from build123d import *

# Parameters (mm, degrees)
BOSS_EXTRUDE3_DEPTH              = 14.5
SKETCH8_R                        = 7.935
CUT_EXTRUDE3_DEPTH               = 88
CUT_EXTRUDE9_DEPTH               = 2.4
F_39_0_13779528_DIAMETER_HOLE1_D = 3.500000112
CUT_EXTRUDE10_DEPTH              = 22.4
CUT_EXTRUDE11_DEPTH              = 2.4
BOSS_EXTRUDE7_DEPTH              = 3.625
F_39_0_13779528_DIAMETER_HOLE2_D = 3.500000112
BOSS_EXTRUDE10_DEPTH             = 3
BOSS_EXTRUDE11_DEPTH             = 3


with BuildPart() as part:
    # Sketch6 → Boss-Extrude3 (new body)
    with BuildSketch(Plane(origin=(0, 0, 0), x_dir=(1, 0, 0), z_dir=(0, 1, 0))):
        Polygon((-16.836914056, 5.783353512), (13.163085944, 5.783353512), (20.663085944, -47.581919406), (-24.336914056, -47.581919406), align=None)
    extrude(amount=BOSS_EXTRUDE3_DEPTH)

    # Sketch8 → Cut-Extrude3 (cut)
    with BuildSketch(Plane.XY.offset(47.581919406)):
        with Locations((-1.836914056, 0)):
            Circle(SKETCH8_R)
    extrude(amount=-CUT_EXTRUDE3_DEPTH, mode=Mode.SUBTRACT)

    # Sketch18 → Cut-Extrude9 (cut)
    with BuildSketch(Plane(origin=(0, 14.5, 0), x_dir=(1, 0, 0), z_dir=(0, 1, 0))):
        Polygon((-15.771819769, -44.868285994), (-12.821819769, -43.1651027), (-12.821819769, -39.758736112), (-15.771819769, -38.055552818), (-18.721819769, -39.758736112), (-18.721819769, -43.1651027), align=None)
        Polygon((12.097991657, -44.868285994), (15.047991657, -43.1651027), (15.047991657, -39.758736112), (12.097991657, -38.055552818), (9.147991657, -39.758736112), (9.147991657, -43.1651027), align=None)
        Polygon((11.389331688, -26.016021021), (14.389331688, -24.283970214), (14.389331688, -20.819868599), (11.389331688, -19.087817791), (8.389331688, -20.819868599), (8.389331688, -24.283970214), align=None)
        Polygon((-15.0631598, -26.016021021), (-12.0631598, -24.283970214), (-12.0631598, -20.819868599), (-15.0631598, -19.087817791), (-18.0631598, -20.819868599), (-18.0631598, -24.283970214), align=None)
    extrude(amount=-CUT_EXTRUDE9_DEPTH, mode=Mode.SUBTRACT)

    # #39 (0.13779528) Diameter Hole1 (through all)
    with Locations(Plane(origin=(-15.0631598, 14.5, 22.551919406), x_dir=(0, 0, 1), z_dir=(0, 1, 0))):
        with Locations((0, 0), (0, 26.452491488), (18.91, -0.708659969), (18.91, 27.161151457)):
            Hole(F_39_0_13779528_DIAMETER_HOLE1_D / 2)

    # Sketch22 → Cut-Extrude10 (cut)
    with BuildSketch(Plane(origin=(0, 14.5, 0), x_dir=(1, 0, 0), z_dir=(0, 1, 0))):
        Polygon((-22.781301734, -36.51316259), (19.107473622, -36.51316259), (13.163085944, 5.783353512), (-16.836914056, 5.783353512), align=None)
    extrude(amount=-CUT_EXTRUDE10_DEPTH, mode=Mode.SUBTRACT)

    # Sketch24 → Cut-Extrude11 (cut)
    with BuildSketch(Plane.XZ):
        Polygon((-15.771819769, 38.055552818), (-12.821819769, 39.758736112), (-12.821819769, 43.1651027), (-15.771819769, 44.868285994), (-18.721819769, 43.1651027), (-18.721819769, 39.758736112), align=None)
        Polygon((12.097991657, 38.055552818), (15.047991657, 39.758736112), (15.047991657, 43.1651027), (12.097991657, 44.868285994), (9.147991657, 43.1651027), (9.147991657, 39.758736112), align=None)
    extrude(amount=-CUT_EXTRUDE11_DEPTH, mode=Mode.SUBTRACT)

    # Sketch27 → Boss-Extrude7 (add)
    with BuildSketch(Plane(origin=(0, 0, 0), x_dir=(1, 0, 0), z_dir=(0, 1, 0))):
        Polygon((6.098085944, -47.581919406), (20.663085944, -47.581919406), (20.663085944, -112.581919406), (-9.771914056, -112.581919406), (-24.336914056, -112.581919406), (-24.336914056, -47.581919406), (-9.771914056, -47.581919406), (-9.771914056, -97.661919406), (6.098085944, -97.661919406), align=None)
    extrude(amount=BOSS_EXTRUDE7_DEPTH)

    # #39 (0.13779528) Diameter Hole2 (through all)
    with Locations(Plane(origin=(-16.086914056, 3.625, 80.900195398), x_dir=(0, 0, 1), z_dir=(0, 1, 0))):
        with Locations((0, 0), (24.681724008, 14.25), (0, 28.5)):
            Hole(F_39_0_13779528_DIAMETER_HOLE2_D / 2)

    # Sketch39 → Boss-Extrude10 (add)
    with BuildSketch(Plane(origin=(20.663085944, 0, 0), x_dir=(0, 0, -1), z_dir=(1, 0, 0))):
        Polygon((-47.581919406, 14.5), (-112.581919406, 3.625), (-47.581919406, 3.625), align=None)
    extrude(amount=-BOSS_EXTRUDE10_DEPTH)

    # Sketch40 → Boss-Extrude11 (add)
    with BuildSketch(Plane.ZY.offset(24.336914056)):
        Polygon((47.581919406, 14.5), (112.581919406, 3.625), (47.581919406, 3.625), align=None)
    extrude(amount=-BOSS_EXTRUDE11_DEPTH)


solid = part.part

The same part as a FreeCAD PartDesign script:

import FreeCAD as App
import Part
import Sketcher

V = App.Vector
Q = App.Units.Quantity


def add_polygon(sketch, points):
    """Adds a closed chain of lines whose ends are joined by coincident constraints."""
    first, n = sketch.GeometryCount, len(points)
    for a, b in zip(points, points[1:] + points[:1]):
        sketch.addGeometry(Part.LineSegment(App.Vector(*a, 0), App.Vector(*b, 0)), False)
    for i in range(n):
        sketch.addConstraint(Sketcher.Constraint("Coincident", first + i, 2, first + (i + 1) % n, 1))

doc = App.newDocument("Part")
body = doc.addObject("PartDesign::Body", "Body")

sketch1 = doc.addObject("Sketcher::SketchObject", "Sketch")
body.addObject(sketch1)
sketch1.AttachmentSupport = (doc.XZ_Plane, [""])
sketch1.MapMode = "FlatFace"
add_polygon(sketch1, [(13.163086, -5.783354), (-16.836914, -5.783354), (-24.336914, 47.581919), (20.663086, 47.581919)])
sketch1.addConstraint(Sketcher.Constraint("Horizontal", 0))
sketch1.addConstraint(Sketcher.Constraint("Horizontal", 2))
sketch1.addConstraint(Sketcher.Constraint("Equal", 1, 3))
sketch1.addConstraint(Sketcher.Constraint("DistanceX", 0, 2, 0, 1, Q("30 mm")))
sketch1.addConstraint(Sketcher.Constraint("DistanceX", 2, 1, 2, 2, Q("45 mm")))
sketch1.addConstraint(Sketcher.Constraint("Angle", 1, Q("98 deg")))
sketch1.addConstraint(Sketcher.Constraint("DistanceY", -1, 1, 1, 2, Q("47.581919 mm")))
sketch1.addConstraint(Sketcher.Constraint("DistanceX", 0, 2, -1, 1, Q("16.836914 mm")))
pad1 = doc.addObject("PartDesign::Pad", "Pad")
body.addObject(pad1)
pad1.Profile = sketch1
pad1.Length = 14.5
pad1.Reversed = True

sketch2 = doc.addObject("Sketcher::SketchObject", "Sketch001")
body.addObject(sketch2)
sketch2.AttachmentSupport = (doc.XY_Plane, [""])
sketch2.MapMode = "FlatFace"
sketch2.AttachmentOffset = App.Placement(V(0, 0, 47.581919), App.Rotation())
sketch2.addGeometry(Part.Circle(V(-1.836914, 0, 0), V(0, 0, 1), 7.935), False)
sketch2.addConstraint(Sketcher.Constraint("PointOnObject", 0, 3, -1))
sketch2.addConstraint(Sketcher.Constraint("Diameter", 0, Q("15.87 mm")))
sketch2.addConstraint(Sketcher.Constraint("DistanceX", 0, 3, -1, 1, Q("1.836914 mm")))
pocket1 = doc.addObject("PartDesign::Pocket", "Pocket")
body.addObject(pocket1)
pocket1.Profile = sketch2
pocket1.Length = 88

sketch3 = doc.addObject("Sketcher::SketchObject", "Sketch002")
body.addObject(sketch3)
sketch3.AttachmentSupport = (doc.XZ_Plane, [""])
sketch3.MapMode = "FlatFace"
sketch3.AttachmentOffset = App.Placement(V(0, 0, -14.5), App.Rotation())
add_polygon(sketch3, [(-15.77182, 44.868286), (-12.82182, 43.165103), (-12.82182, 39.758736), (-15.77182, 38.055553), (-18.72182, 39.758736), (-18.72182, 43.165103)])
add_polygon(sketch3, [(12.097992, 44.868286), (15.047992, 43.165103), (15.047992, 39.758736), (12.097992, 38.055553), (9.147992, 39.758736), (9.147992, 43.165103)])
add_polygon(sketch3, [(11.389332, 26.016021), (14.389332, 24.28397), (14.389332, 20.819869), (11.389332, 19.087818), (8.389332, 20.819869), (8.389332, 24.28397)])
add_polygon(sketch3, [(-15.06316, 26.016021), (-12.06316, 24.28397), (-12.06316, 20.819869), (-15.06316, 19.087818), (-18.06316, 20.819869), (-18.06316, 24.28397)])
sketch3.addConstraint(Sketcher.Constraint("Vertical", 1))
sketch3.addConstraint(Sketcher.Constraint("Vertical", 4))
sketch3.addConstraint(Sketcher.Constraint("Vertical", 7))
sketch3.addConstraint(Sketcher.Constraint("Vertical", 10))
sketch3.addConstraint(Sketcher.Constraint("Vertical", 13))
sketch3.addConstraint(Sketcher.Constraint("Vertical", 16))
sketch3.addConstraint(Sketcher.Constraint("Vertical", 19))
sketch3.addConstraint(Sketcher.Constraint("Vertical", 22))
sketch3.addConstraint(Sketcher.Constraint("Parallel", 0, 3))
sketch3.addConstraint(Sketcher.Constraint("Parallel", 2, 5))
sketch3.addConstraint(Sketcher.Constraint("Parallel", 3, 6))
sketch3.addConstraint(Sketcher.Constraint("Parallel", 5, 8))
sketch3.addConstraint(Sketcher.Constraint("Parallel", 6, 9))
sketch3.addConstraint(Sketcher.Constraint("Parallel", 8, 11))
sketch3.addConstraint(Sketcher.Constraint("Parallel", 9, 12))
sketch3.addConstraint(Sketcher.Constraint("Parallel", 11, 14))
sketch3.addConstraint(Sketcher.Constraint("Parallel", 12, 15))
sketch3.addConstraint(Sketcher.Constraint("Parallel", 14, 17))
sketch3.addConstraint(Sketcher.Constraint("Parallel", 15, 18))
sketch3.addConstraint(Sketcher.Constraint("Parallel", 17, 20))
sketch3.addConstraint(Sketcher.Constraint("Parallel", 18, 21))
sketch3.addConstraint(Sketcher.Constraint("Parallel", 20, 23))
sketch3.addConstraint(Sketcher.Constraint("Horizontal", 1, 2, 3, 2))
sketch3.addConstraint(Sketcher.Constraint("Horizontal", 0, 2, 4, 2))
sketch3.addConstraint(Sketcher.Constraint("Horizontal", 4, 2, 6, 2))
sketch3.addConstraint(Sketcher.Constraint("Horizontal", 3, 2, 7, 2))
sketch3.addConstraint(Sketcher.Constraint("Horizontal", 2, 2, 8, 2))
sketch3.addConstraint(Sketcher.Constraint("Horizontal", 7, 2, 9, 2))
sketch3.addConstraint(Sketcher.Constraint("Horizontal", 6, 2, 10, 2))
sketch3.addConstraint(Sketcher.Constraint("Horizontal", 13, 2, 15, 2))
sketch3.addConstraint(Sketcher.Constraint("Horizontal", 12, 2, 16, 2))
sketch3.addConstraint(Sketcher.Constraint("Horizontal", 16, 2, 18, 2))
sketch3.addConstraint(Sketcher.Constraint("Horizontal", 15, 2, 19, 2))
sketch3.addConstraint(Sketcher.Constraint("Horizontal", 14, 2, 20, 2))
sketch3.addConstraint(Sketcher.Constraint("Horizontal", 19, 2, 21, 2))
sketch3.addConstraint(Sketcher.Constraint("Horizontal", 18, 2, 22, 2))
sketch3.addConstraint(Sketcher.Constraint("Vertical", 2, 2, 5, 2))
sketch3.addConstraint(Sketcher.Constraint("Angle", 0, Q("-30 deg")))
sketch3.addConstraint(Sketcher.Constraint("DistanceX", 14, 2, 13, 2, Q("3 mm")))
sketch3.addConstraint(Sketcher.Constraint("DistanceX", 3, 2, 1, 2, Q("5.9 mm")))
sketch3.addConstraint(Sketcher.Constraint("DistanceY", 13, 2, 13, 1, Q("3.464102 mm")))
sketch3.addConstraint(Sketcher.Constraint("DistanceY", 1, 2, 1, 1, Q("3.406367 mm")))
sketch3.addConstraint(Sketcher.Constraint("DistanceX", 0, 2, -1, 1, Q("12.82182 mm")))
sketch3.addConstraint(Sketcher.Constraint("DistanceX", -1, 1, 6, 2, Q("15.047992 mm")))
sketch3.addConstraint(Sketcher.Constraint("DistanceX", -1, 1, 12, 2, Q("14.389332 mm")))
sketch3.addConstraint(Sketcher.Constraint("DistanceY", -1, 1, 12, 2, Q("24.28397 mm")))
sketch3.addConstraint(Sketcher.Constraint("DistanceX", 18, 2, -1, 1, Q("12.06316 mm")))
sketch3.addConstraint(Sketcher.Constraint("DistanceY", 14, 2, 9, 2, Q("20.670918 mm")))
pocket2 = doc.addObject("PartDesign::Pocket", "Pocket001")
body.addObject(pocket2)
pocket2.Profile = sketch3
pocket2.Length = 2.4
pocket2.Reversed = True

sketch4 = doc.addObject("Sketcher::SketchObject", "Sketch003")
body.addObject(sketch4)
sketch4.AttachmentSupport = (doc.XZ_Plane, [""])
sketch4.MapMode = "FlatFace"
sketch4.AttachmentOffset = App.Placement(V(0, 0, -14.5), App.Rotation())
sketch4.addGeometry(Part.Circle(V(-15.06316, 22.551919, 0), V(0, 0, 1), 1.75), False)
sketch4.addGeometry(Part.Circle(V(11.389332, 22.551919, 0), V(0, 0, 1), 1.75), False)
sketch4.addGeometry(Part.Circle(V(-15.77182, 41.461919, 0), V(0, 0, 1), 1.75), False)
sketch4.addGeometry(Part.Circle(V(12.097992, 41.461919, 0), V(0, 0, 1), 1.75), False)
sketch4.addConstraint(Sketcher.Constraint("Equal", 0, 1))
sketch4.addConstraint(Sketcher.Constraint("Equal", 1, 2))
sketch4.addConstraint(Sketcher.Constraint("Equal", 2, 3))
sketch4.addConstraint(Sketcher.Constraint("Horizontal", 0, 3, 1, 3))
sketch4.addConstraint(Sketcher.Constraint("Horizontal", 2, 3, 3, 3))
sketch4.addConstraint(Sketcher.Constraint("Diameter", 0, Q("3.5 mm")))
sketch4.addConstraint(Sketcher.Constraint("DistanceY", 0, 3, 2, 3, Q("18.91 mm")))
sketch4.addConstraint(Sketcher.Constraint("DistanceX", 0, 3, -1, 1, Q("15.06316 mm")))
sketch4.addConstraint(Sketcher.Constraint("DistanceY", -1, 1, 0, 3, Q("22.551919 mm")))
sketch4.addConstraint(Sketcher.Constraint("DistanceX", -1, 1, 1, 3, Q("11.389332 mm")))
sketch4.addConstraint(Sketcher.Constraint("DistanceX", 2, 3, -1, 1, Q("15.77182 mm")))
sketch4.addConstraint(Sketcher.Constraint("DistanceX", -1, 1, 3, 3, Q("12.097992 mm")))
doc.recompute()
hole = doc.addObject("PartDesign::Hole", "Hole")
body.addObject(hole)
hole.Profile = sketch4
hole.ThreadType = "None"
hole.Diameter = 3.5
hole.DepthType = "ThroughAll"
hole.Reversed = True

sketch5 = doc.addObject("Sketcher::SketchObject", "Sketch004")
body.addObject(sketch5)
sketch5.AttachmentSupport = (doc.XZ_Plane, [""])
sketch5.MapMode = "FlatFace"
sketch5.AttachmentOffset = App.Placement(V(0, 0, -14.5), App.Rotation())
add_polygon(sketch5, [(-22.781302, 36.513163), (19.107474, 36.513163), (13.163086, -5.783354), (-16.836914, -5.783354)])
sketch5.addConstraint(Sketcher.Constraint("Horizontal", 0))
sketch5.addConstraint(Sketcher.Constraint("Horizontal", 2))
sketch5.addConstraint(Sketcher.Constraint("Equal", 1, 3))
sketch5.addConstraint(Sketcher.Constraint("DistanceX", 2, 2, 2, 1, Q("30 mm")))
sketch5.addConstraint(Sketcher.Constraint("Angle", 1, Q("-98 deg")))
sketch5.addConstraint(Sketcher.Constraint("DistanceX", 3, 2, -1, 1, Q("22.781302 mm")))
sketch5.addConstraint(Sketcher.Constraint("Distance", 1, Q("42.712188 mm")))
sketch5.addConstraint(Sketcher.Constraint("DistanceY", -1, 1, 0, 2, Q("36.513163 mm")))
pocket3 = doc.addObject("PartDesign::Pocket", "Pocket002")
body.addObject(pocket3)
pocket3.Profile = sketch5
pocket3.Length = 22.4
pocket3.Reversed = True

sketch6 = doc.addObject("Sketcher::SketchObject", "Sketch005")
body.addObject(sketch6)
sketch6.AttachmentSupport = (doc.XZ_Plane, [""])
sketch6.MapMode = "FlatFace"
add_polygon(sketch6, [(-15.77182, 38.055553), (-12.82182, 39.758736), (-12.82182, 43.165103), (-15.77182, 44.868286), (-18.72182, 43.165103), (-18.72182, 39.758736)])
add_polygon(sketch6, [(12.097992, 38.055553), (15.047992, 39.758736), (15.047992, 43.165103), (12.097992, 44.868286), (9.147992, 43.165103), (9.147992, 39.758736)])
sketch6.addConstraint(Sketcher.Constraint("Vertical", 1))
sketch6.addConstraint(Sketcher.Constraint("Vertical", 4))
sketch6.addConstraint(Sketcher.Constraint("Vertical", 7))
sketch6.addConstraint(Sketcher.Constraint("Vertical", 10))
sketch6.addConstraint(Sketcher.Constraint("Parallel", 0, 3))
sketch6.addConstraint(Sketcher.Constraint("Parallel", 2, 5))
sketch6.addConstraint(Sketcher.Constraint("Parallel", 3, 6))
sketch6.addConstraint(Sketcher.Constraint("Parallel", 5, 8))
sketch6.addConstraint(Sketcher.Constraint("Parallel", 6, 9))
sketch6.addConstraint(Sketcher.Constraint("Parallel", 8, 11))
sketch6.addConstraint(Sketcher.Constraint("Horizontal", 1, 2, 3, 2))
sketch6.addConstraint(Sketcher.Constraint("Horizontal", 0, 2, 4, 2))
sketch6.addConstraint(Sketcher.Constraint("Horizontal", 4, 2, 6, 2))
sketch6.addConstraint(Sketcher.Constraint("Horizontal", 3, 2, 7, 2))
sketch6.addConstraint(Sketcher.Constraint("Horizontal", 2, 2, 8, 2))
sketch6.addConstraint(Sketcher.Constraint("Horizontal", 7, 2, 9, 2))
sketch6.addConstraint(Sketcher.Constraint("Horizontal", 6, 2, 10, 2))
sketch6.addConstraint(Sketcher.Constraint("Vertical", 2, 2, 5, 2))
sketch6.addConstraint(Sketcher.Constraint("Angle", 0, Q("30 deg")))
sketch6.addConstraint(Sketcher.Constraint("DistanceX", 3, 2, 1, 2, Q("5.9 mm")))
sketch6.addConstraint(Sketcher.Constraint("DistanceY", 1, 1, 1, 2, Q("3.406367 mm")))
sketch6.addConstraint(Sketcher.Constraint("DistanceX", 0, 2, -1, 1, Q("12.82182 mm")))
sketch6.addConstraint(Sketcher.Constraint("DistanceX", -1, 1, 6, 2, Q("15.047992 mm")))
sketch6.addConstraint(Sketcher.Constraint("DistanceY", -1, 1, 0, 2, Q("39.758736 mm")))
pocket4 = doc.addObject("PartDesign::Pocket", "Pocket003")
body.addObject(pocket4)
pocket4.Profile = sketch6
pocket4.Length = 2.4

sketch7 = doc.addObject("Sketcher::SketchObject", "Sketch006")
body.addObject(sketch7)
sketch7.AttachmentSupport = (doc.XZ_Plane, [""])
sketch7.MapMode = "FlatFace"
add_polygon(sketch7, [(20.663086, 47.581919), (6.098086, 47.581919), (6.098086, 97.661919), (-9.771914, 97.661919), (-9.771914, 47.581919), (-24.336914, 47.581919), (-24.336914, 112.581919), (20.663086, 112.581919)])
sketch7.addConstraint(Sketcher.Constraint("Horizontal", 0))
sketch7.addConstraint(Sketcher.Constraint("Vertical", 1))
sketch7.addConstraint(Sketcher.Constraint("Horizontal", 2))
sketch7.addConstraint(Sketcher.Constraint("Vertical", 3))
sketch7.addConstraint(Sketcher.Constraint("Horizontal", 4))
sketch7.addConstraint(Sketcher.Constraint("Vertical", 5))
sketch7.addConstraint(Sketcher.Constraint("Horizontal", 6))
sketch7.addConstraint(Sketcher.Constraint("Vertical", 7))
sketch7.addConstraint(Sketcher.Constraint("Horizontal", 0, 2, 3, 2))
sketch7.addConstraint(Sketcher.Constraint("Equal", 0, 4))
sketch7.addConstraint(Sketcher.Constraint("DistanceX", 6, 1, 6, 2, Q("45 mm")))
sketch7.addConstraint(Sketcher.Constraint("DistanceY", 5, 1, 5, 2, Q("65 mm")))
sketch7.addConstraint(Sketcher.Constraint("DistanceX", 2, 2, 2, 1, Q("15.87 mm")))
sketch7.addConstraint(Sketcher.Constraint("DistanceY", 1, 1, 1, 2, Q("50.08 mm")))
sketch7.addConstraint(Sketcher.Constraint("DistanceY", -1, 1, 0, 2, Q("47.581919 mm")))
sketch7.addConstraint(Sketcher.Constraint("DistanceX", -1, 1, 0, 2, Q("6.098086 mm")))
pad2 = doc.addObject("PartDesign::Pad", "Pad001")
body.addObject(pad2)
pad2.Profile = sketch7
pad2.Length = 3.625
pad2.Reversed = True

sketch8 = doc.addObject("Sketcher::SketchObject", "Sketch007")
body.addObject(sketch8)
sketch8.AttachmentSupport = (doc.XZ_Plane, [""])
sketch8.MapMode = "FlatFace"
sketch8.AttachmentOffset = App.Placement(V(0, 0, -3.625), App.Rotation())
sketch8.addGeometry(Part.Circle(V(-16.086914, 80.900195, 0), V(0, 0, 1), 1.75), False)
sketch8.addGeometry(Part.Circle(V(-1.836914, 105.581919, 0), V(0, 0, 1), 1.75), False)
sketch8.addGeometry(Part.Circle(V(12.413086, 80.900195, 0), V(0, 0, 1), 1.75), False)
sketch8.addConstraint(Sketcher.Constraint("Equal", 0, 1))
sketch8.addConstraint(Sketcher.Constraint("Equal", 1, 2))
sketch8.addConstraint(Sketcher.Constraint("Horizontal", 0, 3, 2, 3))
sketch8.addConstraint(Sketcher.Constraint("Diameter", 0, Q("3.5 mm")))
sketch8.addConstraint(Sketcher.Constraint("DistanceX", 0, 3, 2, 3, Q("28.5 mm")))
sketch8.addConstraint(Sketcher.Constraint("DistanceX", 0, 3, 1, 3, Q("14.25 mm")))
sketch8.addConstraint(Sketcher.Constraint("DistanceY", -1, 1, 1, 3, Q("105.581919 mm")))
sketch8.addConstraint(Sketcher.Constraint("DistanceX", 0, 3, -1, 1, Q("16.086914 mm")))
sketch8.addConstraint(Sketcher.Constraint("DistanceY", -1, 1, 0, 3, Q("80.900195 mm")))
doc.recompute()
hole2 = doc.addObject("PartDesign::Hole", "Hole001")
body.addObject(hole2)
hole2.Profile = sketch8
hole2.ThreadType = "None"
hole2.Diameter = 3.5
hole2.DepthType = "ThroughAll"
hole2.Reversed = True

sketch9 = doc.addObject("Sketcher::SketchObject", "Sketch008")
body.addObject(sketch9)
sketch9.AttachmentSupport = (doc.YZ_Plane, [""])
sketch9.MapMode = "FlatFace"
sketch9.AttachmentOffset = App.Placement(V(0, 0, 20.663086), App.Rotation())
add_polygon(sketch9, [(14.5, 47.581919), (3.625, 112.581919), (3.625, 47.581919)])
sketch9.addConstraint(Sketcher.Constraint("Vertical", 1))
sketch9.addConstraint(Sketcher.Constraint("Horizontal", 2))
sketch9.addConstraint(Sketcher.Constraint("DistanceY", 1, 2, 1, 1, Q("65 mm")))
sketch9.addConstraint(Sketcher.Constraint("DistanceX", -1, 1, 2, 2, Q("14.5 mm")))
sketch9.addConstraint(Sketcher.Constraint("DistanceX", 2, 1, 2, 2, Q("10.875 mm")))
sketch9.addConstraint(Sketcher.Constraint("DistanceY", -1, 1, 0, 2, Q("112.581919 mm")))
pad3 = doc.addObject("PartDesign::Pad", "Pad002")
body.addObject(pad3)
pad3.Profile = sketch9
pad3.Length = 3
pad3.Reversed = True

sketch10 = doc.addObject("Sketcher::SketchObject", "Sketch009")
body.addObject(sketch10)
sketch10.AttachmentSupport = (doc.YZ_Plane, [""])
sketch10.MapMode = "FlatFace"
sketch10.AttachmentOffset = App.Placement(V(0, 0, -24.336914), App.Rotation())
add_polygon(sketch10, [(3.625, 112.581919), (14.5, 47.581919), (3.625, 47.581919)])
sketch10.addConstraint(Sketcher.Constraint("Horizontal", 1))
sketch10.addConstraint(Sketcher.Constraint("Vertical", 2))
sketch10.addConstraint(Sketcher.Constraint("DistanceY", 2, 1, 2, 2, Q("65 mm")))
sketch10.addConstraint(Sketcher.Constraint("DistanceX", -1, 1, 0, 2, Q("14.5 mm")))
sketch10.addConstraint(Sketcher.Constraint("DistanceX", 1, 2, 1, 1, Q("10.875 mm")))
sketch10.addConstraint(Sketcher.Constraint("DistanceY", -1, 1, 0, 2, Q("47.581919 mm")))
pad4 = doc.addObject("PartDesign::Pad", "Pad003")
body.addObject(pad4)
pad4.Profile = sketch10
pad4.Length = 3

doc.recompute()
